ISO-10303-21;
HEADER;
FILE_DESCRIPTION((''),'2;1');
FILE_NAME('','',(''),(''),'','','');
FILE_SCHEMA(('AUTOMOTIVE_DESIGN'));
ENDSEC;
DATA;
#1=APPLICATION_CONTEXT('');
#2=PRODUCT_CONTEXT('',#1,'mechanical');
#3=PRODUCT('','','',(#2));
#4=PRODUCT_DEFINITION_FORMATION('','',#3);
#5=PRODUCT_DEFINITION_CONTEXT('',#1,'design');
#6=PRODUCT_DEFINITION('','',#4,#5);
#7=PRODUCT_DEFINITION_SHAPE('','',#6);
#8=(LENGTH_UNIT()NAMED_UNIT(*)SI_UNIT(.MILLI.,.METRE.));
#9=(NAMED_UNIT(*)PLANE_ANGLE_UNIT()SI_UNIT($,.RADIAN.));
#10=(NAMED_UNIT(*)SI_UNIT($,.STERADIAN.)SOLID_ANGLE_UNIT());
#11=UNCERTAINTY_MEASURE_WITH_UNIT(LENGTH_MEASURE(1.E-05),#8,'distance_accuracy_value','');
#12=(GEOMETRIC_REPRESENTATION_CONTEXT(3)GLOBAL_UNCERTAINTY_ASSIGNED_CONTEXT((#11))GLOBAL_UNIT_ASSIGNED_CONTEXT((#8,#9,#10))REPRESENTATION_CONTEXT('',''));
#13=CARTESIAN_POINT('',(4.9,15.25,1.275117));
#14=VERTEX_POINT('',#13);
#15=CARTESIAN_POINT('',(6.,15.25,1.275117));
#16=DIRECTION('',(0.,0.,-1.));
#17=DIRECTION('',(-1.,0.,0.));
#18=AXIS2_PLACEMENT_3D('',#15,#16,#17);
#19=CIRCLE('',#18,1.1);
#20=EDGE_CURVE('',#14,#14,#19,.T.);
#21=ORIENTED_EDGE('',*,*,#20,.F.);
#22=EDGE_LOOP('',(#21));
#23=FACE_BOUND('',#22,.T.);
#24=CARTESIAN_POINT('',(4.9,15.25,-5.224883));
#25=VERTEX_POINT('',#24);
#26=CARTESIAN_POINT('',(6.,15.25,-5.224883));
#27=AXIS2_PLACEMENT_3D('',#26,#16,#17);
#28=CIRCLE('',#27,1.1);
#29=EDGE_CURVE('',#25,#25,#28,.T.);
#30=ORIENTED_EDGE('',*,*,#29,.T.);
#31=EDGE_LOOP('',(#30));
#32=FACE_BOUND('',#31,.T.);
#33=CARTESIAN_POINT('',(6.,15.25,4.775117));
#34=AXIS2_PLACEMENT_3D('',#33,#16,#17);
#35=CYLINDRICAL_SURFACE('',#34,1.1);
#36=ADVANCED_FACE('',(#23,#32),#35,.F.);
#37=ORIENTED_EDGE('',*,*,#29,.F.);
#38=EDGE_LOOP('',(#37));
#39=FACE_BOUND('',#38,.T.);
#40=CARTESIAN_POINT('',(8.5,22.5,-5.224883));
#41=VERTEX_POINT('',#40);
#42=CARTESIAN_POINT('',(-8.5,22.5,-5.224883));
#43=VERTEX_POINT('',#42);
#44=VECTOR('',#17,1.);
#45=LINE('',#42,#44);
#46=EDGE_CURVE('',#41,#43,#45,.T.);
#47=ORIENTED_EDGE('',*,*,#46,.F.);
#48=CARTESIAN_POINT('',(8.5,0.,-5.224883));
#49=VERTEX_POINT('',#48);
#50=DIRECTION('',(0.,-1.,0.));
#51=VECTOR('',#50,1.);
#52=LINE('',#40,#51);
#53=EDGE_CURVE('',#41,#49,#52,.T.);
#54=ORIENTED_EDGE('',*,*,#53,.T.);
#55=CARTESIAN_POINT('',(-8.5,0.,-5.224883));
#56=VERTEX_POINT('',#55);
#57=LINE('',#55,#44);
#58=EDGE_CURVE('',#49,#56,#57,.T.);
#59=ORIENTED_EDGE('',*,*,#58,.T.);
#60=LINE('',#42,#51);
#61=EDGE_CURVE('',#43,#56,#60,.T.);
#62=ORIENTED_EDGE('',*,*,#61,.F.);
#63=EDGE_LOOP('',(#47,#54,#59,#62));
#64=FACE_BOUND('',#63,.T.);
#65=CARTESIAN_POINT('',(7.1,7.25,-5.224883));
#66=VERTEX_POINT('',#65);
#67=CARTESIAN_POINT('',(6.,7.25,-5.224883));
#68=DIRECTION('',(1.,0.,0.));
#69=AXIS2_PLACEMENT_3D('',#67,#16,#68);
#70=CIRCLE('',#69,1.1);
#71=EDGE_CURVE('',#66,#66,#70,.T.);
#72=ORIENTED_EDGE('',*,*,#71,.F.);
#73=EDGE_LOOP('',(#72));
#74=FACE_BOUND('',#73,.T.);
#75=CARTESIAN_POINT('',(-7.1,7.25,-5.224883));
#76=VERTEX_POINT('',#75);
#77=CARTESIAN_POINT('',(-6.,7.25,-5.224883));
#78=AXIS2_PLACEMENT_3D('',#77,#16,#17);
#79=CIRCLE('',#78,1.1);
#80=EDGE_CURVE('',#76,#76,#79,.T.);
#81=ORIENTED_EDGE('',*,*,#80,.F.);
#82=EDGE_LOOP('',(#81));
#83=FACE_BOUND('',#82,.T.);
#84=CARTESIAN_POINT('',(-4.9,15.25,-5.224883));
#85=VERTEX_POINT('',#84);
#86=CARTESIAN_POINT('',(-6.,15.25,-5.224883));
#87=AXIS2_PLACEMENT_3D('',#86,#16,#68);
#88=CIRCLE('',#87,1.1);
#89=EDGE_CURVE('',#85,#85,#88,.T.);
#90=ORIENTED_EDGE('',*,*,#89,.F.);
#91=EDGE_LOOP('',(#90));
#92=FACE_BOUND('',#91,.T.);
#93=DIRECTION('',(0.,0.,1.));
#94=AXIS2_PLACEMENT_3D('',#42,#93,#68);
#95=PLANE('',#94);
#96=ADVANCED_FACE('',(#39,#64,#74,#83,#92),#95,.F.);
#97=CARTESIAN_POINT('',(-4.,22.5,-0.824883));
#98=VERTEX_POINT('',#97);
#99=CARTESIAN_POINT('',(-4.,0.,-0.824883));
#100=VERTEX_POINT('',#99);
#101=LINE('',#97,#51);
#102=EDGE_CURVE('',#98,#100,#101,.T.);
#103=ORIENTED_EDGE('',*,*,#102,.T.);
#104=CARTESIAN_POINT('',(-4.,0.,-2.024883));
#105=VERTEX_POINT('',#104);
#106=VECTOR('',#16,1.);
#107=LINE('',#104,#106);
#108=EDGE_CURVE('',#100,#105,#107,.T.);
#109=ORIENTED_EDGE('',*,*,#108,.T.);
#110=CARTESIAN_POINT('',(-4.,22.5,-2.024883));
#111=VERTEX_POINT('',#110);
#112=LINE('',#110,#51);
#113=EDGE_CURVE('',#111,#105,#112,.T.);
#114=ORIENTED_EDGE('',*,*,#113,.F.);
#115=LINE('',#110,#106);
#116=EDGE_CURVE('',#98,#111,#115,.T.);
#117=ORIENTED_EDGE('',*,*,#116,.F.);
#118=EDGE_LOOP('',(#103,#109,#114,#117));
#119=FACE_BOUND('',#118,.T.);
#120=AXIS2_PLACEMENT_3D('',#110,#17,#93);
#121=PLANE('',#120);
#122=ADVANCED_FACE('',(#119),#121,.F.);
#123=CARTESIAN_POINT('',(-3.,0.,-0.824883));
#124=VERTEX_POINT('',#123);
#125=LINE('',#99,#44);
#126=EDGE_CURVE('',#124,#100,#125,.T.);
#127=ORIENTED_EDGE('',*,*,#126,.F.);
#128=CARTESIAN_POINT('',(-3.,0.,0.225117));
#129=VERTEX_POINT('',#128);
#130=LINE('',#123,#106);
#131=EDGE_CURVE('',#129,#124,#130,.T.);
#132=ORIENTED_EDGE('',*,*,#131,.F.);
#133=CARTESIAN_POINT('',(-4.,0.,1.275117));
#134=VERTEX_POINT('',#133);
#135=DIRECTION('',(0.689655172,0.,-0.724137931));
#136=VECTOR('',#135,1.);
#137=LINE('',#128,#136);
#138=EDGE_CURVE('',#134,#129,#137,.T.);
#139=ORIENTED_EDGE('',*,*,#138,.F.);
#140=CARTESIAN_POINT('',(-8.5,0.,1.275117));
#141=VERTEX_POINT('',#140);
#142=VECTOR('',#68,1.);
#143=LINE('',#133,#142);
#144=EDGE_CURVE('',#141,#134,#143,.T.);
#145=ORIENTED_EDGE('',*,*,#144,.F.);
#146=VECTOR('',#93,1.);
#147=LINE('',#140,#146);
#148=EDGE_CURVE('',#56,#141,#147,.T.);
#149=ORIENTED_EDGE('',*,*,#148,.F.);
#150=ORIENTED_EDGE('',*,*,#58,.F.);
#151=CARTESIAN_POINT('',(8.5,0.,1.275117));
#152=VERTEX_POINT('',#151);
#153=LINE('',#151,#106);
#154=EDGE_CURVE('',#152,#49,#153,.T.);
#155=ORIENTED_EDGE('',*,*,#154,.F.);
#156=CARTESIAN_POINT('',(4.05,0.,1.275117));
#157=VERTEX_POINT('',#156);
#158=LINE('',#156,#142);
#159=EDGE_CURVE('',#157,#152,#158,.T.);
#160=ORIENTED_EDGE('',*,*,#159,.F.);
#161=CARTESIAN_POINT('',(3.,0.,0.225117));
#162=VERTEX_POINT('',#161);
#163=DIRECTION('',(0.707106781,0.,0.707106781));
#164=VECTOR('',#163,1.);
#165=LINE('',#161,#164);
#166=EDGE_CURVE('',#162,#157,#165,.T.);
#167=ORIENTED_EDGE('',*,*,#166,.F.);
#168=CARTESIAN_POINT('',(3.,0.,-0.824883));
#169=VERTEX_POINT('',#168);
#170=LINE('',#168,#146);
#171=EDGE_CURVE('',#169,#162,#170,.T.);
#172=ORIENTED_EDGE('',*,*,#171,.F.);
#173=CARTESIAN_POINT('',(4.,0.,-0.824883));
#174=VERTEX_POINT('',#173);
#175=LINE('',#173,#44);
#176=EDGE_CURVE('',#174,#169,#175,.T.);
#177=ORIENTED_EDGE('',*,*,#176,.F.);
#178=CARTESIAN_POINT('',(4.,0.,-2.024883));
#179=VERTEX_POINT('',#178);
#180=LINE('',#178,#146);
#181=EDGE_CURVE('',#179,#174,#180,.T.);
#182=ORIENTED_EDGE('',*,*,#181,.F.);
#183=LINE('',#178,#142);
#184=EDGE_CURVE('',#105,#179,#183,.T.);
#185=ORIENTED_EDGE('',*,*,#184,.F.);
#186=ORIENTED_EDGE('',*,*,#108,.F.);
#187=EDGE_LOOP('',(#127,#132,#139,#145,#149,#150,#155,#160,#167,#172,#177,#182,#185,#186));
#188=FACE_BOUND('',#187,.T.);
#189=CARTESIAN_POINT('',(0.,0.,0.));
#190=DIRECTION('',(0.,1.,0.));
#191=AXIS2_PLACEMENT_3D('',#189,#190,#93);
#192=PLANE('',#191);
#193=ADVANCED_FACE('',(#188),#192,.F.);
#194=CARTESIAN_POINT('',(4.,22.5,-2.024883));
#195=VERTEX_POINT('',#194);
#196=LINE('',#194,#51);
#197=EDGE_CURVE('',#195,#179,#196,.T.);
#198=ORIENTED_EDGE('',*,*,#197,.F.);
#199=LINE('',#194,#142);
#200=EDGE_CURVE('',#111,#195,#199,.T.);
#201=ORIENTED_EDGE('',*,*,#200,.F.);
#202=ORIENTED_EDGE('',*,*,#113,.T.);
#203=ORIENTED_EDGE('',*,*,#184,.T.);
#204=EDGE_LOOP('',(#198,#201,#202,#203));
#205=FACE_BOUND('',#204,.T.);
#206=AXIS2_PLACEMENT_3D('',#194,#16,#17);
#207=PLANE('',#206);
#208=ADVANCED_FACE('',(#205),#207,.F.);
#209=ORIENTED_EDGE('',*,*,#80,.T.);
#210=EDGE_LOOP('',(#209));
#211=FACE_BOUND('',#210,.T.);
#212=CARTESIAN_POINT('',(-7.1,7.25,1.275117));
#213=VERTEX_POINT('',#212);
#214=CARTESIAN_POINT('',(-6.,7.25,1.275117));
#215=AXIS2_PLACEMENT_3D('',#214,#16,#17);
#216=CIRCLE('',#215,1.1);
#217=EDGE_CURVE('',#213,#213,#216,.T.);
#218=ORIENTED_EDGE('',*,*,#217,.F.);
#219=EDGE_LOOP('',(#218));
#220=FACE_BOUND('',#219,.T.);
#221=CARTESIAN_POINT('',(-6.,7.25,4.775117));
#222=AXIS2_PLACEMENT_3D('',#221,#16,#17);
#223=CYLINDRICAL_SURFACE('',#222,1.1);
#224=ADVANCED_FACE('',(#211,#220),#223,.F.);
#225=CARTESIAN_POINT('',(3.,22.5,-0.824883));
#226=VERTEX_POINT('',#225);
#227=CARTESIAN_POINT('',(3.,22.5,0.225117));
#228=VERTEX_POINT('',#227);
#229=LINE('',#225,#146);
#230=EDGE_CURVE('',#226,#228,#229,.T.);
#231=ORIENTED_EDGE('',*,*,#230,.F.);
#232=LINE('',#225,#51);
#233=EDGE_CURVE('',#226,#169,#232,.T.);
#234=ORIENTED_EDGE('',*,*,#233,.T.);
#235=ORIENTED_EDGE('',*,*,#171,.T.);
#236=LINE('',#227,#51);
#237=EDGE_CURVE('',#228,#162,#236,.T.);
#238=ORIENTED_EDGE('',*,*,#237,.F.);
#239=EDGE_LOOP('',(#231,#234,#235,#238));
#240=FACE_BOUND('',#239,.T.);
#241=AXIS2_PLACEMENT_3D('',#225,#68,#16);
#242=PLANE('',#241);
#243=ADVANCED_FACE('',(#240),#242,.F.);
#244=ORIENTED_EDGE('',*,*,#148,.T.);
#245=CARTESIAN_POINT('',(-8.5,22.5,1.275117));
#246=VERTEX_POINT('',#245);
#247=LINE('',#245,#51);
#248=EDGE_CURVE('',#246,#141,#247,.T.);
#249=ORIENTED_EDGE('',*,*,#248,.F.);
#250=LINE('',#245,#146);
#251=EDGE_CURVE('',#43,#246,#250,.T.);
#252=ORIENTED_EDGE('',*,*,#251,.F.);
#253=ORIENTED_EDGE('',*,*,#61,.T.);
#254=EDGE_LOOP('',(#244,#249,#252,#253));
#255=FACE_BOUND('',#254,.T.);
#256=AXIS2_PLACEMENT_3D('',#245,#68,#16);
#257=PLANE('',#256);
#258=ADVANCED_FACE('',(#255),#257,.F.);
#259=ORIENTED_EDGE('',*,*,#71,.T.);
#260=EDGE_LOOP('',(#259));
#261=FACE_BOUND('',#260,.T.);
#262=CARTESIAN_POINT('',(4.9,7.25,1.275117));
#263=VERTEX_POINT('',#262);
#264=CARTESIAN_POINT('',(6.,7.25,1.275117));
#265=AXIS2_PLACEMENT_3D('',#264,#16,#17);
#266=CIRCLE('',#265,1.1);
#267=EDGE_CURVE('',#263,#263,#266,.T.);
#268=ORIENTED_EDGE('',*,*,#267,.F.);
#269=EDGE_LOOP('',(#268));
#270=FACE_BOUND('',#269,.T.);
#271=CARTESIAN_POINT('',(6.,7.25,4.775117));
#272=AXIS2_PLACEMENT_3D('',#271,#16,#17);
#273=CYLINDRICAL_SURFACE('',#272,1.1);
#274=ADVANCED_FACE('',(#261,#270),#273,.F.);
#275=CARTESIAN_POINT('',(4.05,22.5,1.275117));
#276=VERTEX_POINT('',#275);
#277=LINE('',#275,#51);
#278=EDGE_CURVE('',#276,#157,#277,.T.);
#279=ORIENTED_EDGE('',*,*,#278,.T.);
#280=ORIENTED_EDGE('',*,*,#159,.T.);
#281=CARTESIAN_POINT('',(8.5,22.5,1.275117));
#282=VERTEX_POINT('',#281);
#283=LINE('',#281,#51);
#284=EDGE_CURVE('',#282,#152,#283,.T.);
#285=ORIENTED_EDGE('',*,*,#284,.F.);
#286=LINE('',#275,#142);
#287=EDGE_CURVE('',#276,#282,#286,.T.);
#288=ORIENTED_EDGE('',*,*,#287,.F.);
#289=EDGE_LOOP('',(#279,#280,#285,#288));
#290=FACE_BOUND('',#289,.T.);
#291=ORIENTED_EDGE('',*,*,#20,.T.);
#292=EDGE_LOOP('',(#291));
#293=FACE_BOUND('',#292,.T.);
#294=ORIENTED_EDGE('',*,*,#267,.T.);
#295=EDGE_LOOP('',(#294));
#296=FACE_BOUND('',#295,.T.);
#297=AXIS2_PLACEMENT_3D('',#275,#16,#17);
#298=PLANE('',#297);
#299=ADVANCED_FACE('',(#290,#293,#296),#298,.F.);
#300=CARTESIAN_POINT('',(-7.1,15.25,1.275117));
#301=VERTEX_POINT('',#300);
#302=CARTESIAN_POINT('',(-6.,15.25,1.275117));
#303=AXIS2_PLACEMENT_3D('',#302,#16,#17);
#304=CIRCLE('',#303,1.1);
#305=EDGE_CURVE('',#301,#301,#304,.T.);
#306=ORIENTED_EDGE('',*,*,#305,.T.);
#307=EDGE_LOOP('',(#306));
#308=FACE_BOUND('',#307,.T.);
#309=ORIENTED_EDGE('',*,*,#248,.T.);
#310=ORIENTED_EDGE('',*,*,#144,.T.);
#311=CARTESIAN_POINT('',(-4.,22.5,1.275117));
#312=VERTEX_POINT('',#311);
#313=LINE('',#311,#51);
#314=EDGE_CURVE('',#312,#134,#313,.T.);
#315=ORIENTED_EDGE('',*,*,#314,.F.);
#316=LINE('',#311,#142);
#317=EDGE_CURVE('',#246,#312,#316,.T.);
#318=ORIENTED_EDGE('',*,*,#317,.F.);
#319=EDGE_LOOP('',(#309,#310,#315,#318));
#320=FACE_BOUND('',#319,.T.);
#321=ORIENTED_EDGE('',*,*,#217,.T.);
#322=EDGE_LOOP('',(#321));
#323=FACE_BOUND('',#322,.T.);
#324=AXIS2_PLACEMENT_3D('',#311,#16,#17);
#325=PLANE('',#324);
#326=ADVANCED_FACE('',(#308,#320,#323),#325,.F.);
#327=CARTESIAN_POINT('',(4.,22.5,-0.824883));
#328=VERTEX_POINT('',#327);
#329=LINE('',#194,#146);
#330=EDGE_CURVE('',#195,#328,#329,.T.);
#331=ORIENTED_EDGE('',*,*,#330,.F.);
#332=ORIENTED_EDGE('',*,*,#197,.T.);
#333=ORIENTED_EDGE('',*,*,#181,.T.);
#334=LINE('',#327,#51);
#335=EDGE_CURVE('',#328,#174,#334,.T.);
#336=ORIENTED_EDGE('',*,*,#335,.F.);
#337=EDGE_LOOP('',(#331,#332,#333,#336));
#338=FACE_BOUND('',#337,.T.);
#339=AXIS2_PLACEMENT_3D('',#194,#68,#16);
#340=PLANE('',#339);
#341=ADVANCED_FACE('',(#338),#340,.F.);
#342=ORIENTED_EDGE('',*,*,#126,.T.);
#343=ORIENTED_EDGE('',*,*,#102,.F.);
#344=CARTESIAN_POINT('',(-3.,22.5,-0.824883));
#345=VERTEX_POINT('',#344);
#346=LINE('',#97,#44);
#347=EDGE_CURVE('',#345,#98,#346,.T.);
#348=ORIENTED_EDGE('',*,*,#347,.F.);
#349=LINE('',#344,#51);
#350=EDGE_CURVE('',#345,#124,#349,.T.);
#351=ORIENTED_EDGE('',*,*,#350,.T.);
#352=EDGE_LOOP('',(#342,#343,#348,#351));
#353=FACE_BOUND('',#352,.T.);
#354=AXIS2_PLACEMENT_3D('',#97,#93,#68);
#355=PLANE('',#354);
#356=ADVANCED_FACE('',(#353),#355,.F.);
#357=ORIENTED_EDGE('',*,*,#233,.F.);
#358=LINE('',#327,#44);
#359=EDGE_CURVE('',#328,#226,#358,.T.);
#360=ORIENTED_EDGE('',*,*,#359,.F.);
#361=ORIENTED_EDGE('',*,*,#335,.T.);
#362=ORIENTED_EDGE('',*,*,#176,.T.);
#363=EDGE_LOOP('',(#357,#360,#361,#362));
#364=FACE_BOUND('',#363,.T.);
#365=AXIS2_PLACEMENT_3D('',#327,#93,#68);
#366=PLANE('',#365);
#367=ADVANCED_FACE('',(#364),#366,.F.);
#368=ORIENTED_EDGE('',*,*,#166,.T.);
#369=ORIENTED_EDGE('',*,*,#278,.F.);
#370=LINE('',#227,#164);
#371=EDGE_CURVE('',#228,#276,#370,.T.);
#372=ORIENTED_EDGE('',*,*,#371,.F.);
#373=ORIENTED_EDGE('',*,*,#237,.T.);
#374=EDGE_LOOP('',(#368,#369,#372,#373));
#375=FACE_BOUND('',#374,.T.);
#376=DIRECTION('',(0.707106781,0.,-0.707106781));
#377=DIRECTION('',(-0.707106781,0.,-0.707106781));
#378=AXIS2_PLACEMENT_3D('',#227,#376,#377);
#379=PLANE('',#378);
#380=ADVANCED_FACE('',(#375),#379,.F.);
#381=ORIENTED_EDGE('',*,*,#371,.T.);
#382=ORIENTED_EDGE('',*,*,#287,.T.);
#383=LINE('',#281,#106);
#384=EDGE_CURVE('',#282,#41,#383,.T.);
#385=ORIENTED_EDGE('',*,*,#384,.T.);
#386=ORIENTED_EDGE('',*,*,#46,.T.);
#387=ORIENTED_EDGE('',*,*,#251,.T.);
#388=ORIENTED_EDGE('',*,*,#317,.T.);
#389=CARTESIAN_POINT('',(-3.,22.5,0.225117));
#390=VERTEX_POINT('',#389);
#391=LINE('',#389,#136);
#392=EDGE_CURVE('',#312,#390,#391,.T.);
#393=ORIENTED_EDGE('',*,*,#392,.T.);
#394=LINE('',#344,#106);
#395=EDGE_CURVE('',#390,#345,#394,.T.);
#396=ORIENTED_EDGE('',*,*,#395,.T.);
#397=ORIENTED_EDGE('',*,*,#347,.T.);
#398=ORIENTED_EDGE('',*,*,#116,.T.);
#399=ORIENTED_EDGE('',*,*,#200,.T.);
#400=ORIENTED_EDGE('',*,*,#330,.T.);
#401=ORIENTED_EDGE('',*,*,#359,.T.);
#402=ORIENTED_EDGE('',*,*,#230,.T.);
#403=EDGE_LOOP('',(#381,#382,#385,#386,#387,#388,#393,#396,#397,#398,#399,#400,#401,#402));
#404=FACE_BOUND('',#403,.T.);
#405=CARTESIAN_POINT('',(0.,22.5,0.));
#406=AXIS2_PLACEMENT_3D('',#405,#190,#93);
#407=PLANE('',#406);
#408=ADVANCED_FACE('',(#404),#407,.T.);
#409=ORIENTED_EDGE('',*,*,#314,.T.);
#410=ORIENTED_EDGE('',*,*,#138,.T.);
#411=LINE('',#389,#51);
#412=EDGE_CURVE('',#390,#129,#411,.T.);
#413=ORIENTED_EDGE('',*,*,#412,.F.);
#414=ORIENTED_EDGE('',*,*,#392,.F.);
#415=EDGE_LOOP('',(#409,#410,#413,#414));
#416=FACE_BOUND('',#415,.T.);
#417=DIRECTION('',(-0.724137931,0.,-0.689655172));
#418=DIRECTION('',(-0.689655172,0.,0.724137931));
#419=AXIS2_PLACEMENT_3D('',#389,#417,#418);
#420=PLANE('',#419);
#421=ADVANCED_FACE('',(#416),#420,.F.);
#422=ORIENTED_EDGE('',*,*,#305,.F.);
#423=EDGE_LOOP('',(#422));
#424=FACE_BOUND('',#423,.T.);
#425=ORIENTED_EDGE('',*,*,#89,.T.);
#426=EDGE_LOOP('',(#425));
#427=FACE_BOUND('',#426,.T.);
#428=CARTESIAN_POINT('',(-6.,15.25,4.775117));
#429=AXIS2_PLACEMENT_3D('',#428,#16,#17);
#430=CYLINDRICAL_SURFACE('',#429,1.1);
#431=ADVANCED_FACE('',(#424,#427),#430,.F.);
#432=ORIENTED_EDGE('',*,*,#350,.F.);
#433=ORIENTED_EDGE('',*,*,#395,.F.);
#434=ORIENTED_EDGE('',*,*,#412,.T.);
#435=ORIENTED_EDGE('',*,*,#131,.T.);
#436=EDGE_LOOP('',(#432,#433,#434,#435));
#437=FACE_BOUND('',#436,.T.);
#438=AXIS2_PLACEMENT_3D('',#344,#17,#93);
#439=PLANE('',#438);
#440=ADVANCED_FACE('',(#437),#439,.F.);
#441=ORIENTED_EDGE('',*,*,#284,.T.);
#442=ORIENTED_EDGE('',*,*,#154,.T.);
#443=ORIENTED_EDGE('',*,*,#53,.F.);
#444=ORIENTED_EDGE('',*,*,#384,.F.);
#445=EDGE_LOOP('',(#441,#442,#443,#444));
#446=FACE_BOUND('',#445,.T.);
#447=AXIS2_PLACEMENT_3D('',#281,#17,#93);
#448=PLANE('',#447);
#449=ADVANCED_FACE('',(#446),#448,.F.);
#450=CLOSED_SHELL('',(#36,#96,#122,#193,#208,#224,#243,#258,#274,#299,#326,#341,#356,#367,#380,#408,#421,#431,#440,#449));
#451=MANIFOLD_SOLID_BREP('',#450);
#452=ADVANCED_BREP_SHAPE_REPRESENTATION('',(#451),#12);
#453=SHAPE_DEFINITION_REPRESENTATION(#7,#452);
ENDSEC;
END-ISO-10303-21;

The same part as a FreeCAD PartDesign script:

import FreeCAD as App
import Part
import Sketcher
Q = App.Units.Quantity

doc = App.newDocument("Part")
params = doc.addObject("Spreadsheet::Sheet", "Params")
for row, (alias, value) in enumerate([
    ("sketch1_width", "1 mm"),
    ("sketch1_width2", "8 mm"),
    ("sketch1_width3", "17 mm"),
    ("sketch1_height", "1.2 mm"),
    ("sketch1_height2", "6.5 mm"),
    ("pad1_length", "22.5 mm"),
    ("sketch2_diameter", "2.2 mm"),
    ("pocket1_length", "10 mm"),
], start=1):
    params.set(f"A{row}", alias)
    params.set(f"B{row}", "=" + value)
    params.setAlias(f"B{row}", alias)

body = doc.addObject("PartDesign::Body", "Body")

sketch1 = body.newObject("Sketcher::SketchObject", "Sketch")
sketch1.AttachmentSupport = (doc.getObject("XZ_Plane"), [""])
sketch1.MapMode = "FlatFace"
sketch1.addGeometry([
    Part.LineSegment(App.Vector(-3, -0.8, 0), App.Vector(-4, -0.8, 0)),
    Part.LineSegment(App.Vector(-4, -0.8, 0), App.Vector(-4, -2, 0)),
    Part.LineSegment(App.Vector(-4, -2, 0), App.Vector(4, -2, 0)),
    Part.LineSegment(App.Vector(4, -2, 0), App.Vector(4, -0.8, 0)),
    Part.LineSegment(App.Vector(4, -0.8, 0), App.Vector(3, -0.8, 0)),
    Part.LineSegment(App.Vector(3, -0.8, 0), App.Vector(3, 0.2, 0)),
    Part.LineSegment(App.Vector(3, 0.2, 0), App.Vector(4, 1.3, 0)),
    Part.LineSegment(App.Vector(4, 1.3, 0), App.Vector(8.5, 1.3, 0)),
    Part.LineSegment(App.Vector(8.5, 1.3, 0), App.Vector(8.5, -5.2, 0)),
    Part.LineSegment(App.Vector(8.5, -5.2, 0), App.Vector(-8.5, -5.2, 0)),
    Part.LineSegment(App.Vector(-8.5, -5.2, 0), App.Vector(-8.5, 1.3, 0)),
    Part.LineSegment(App.Vector(-8.5, 1.3, 0), App.Vector(-4, 1.3, 0)),
    Part.LineSegment(App.Vector(-4, 1.3, 0), App.Vector(-3, 0.2, 0)),
    Part.LineSegment(App.Vector(-3, 0.2, 0), App.Vector(-3, -0.8, 0)),
], False)
sketch1.addConstraint([
    Sketcher.Constraint("Coincident", 0, 2, 1, 1),
    Sketcher.Constraint("Coincident", 1, 2, 2, 1),
    Sketcher.Constraint("Coincident", 2, 2, 3, 1),
    Sketcher.Constraint("Coincident", 3, 2, 4, 1),
    Sketcher.Constraint("Coincident", 4, 2, 5, 1),
    Sketcher.Constraint("Coincident", 5, 2, 6, 1),
    Sketcher.Constraint("Coincident", 6, 2, 7, 1),
    Sketcher.Constraint("Coincident", 7, 2, 8, 1),
    Sketcher.Constraint("Coincident", 8, 2, 9, 1),
    Sketcher.Constraint("Coincident", 9, 2, 10, 1),
    Sketcher.Constraint("Coincident", 10, 2, 11, 1),
    Sketcher.Constraint("Coincident", 11, 2, 12, 1),
    Sketcher.Constraint("Coincident", 12, 2, 13, 1),
    Sketcher.Constraint("Coincident", 13, 2, 0, 1),
    Sketcher.Constraint("Horizontal", 0),
    Sketcher.Constraint("Vertical", 1),
    Sketcher.Constraint("Horizontal", 2),
    Sketcher.Constraint("Vertical", 3),
    Sketcher.Constraint("Horizontal", 4),
    Sketcher.Constraint("Vertical", 5),
    Sketcher.Constraint("Horizontal", 7),
    Sketcher.Constraint("Vertical", 8),
    Sketcher.Constraint("Horizontal", 9),
    Sketcher.Constraint("Vertical", 10),
    Sketcher.Constraint("Horizontal", 11),
    Sketcher.Constraint("Vertical", 13),
    Sketcher.Constraint("Symmetric", 0, 2, 3, 2, -2),
    Sketcher.Constraint("Symmetric", 7, 2, 10, 2, -2),
    Sketcher.Constraint("Symmetric", 5, 2, 12, 2, -2),
    Sketcher.Constraint("Vertical", 1, 2, 11, 2),
    Sketcher.Constraint("DistanceX", 0, 2, 0, 1, 1.0),
    Sketcher.Constraint("DistanceX", 2, 1, 2, 2, 8.0),
    Sketcher.Constraint("DistanceX", 9, 2, 9, 1, 17.0),
    Sketcher.Constraint("Angle", 6, Q("45 deg")),
    Sketcher.Constraint("DistanceY", 1, 2, 1, 1, 1.2),
    Sketcher.Constraint("DistanceY", 8, 2, 8, 1, 6.5),
    Sketcher.Constraint("DistanceX", 7, 1, 7, 2, 4.45),
    Sketcher.Constraint("DistanceY", 5, 1, 5, 2, 1.05),
    Sketcher.Constraint("DistanceY", 0, 2, -1, 1, 0.824883),
])
sketch1.setExpression("Constraints[30]", "Params.sketch1_width")
sketch1.setExpression("Constraints[31]", "Params.sketch1_width2")
sketch1.setExpression("Constraints[32]", "Params.sketch1_width3")
sketch1.setExpression("Constraints[34]", "Params.sketch1_height")
sketch1.setExpression("Constraints[35]", "Params.sketch1_height2")
pad1 = body.newObject("PartDesign::Pad", "Pad")
pad1.Profile = sketch1
pad1.setExpression("Length", "Params.pad1_length")
pad1.Reversed = True

sketch2 = body.newObject("Sketcher::SketchObject", "Sketch001")
sketch2.AttachmentSupport = (doc.getObject("XY_Plane"), [""])
sketch2.MapMode = "FlatFace"
sketch2.AttachmentOffset = App.Placement(App.Vector(0, 0, -5.224883), App.Rotation())
sketch2.addGeometry([
    Part.Circle(App.Vector(6, 15.2, 0), App.Vector(0, 0, 1), 1.1),
    Part.Circle(App.Vector(-6, 15.2, 0), App.Vector(0, 0, 1), 1.1),
    Part.Circle(App.Vector(-6, 7.2, 0), App.Vector(0, 0, 1), 1.1),
    Part.Circle(App.Vector(6, 7.2, 0), App.Vector(0, 0, 1), 1.1),
], False)
sketch2.addConstraint([
    Sketcher.Constraint("Equal", 0, 1),
    Sketcher.Constraint("Equal", 1, 2),
    Sketcher.Constraint("Equal", 2, 3),
    Sketcher.Constraint("Symmetric", 0, 3, 1, 3, -2),
    Sketcher.Constraint("Symmetric", 2, 3, 3, 3, -2),
    Sketcher.Constraint("Vertical", 1, 3, 2, 3),
    Sketcher.Constraint("Diameter", 0, 2.2),
    Sketcher.Constraint("DistanceX", -1, 1, 0, 3, 6.0),
    Sketcher.Constraint("DistanceY", 2, 3, 1, 3, 8.0),
    Sketcher.Constraint("DistanceY", -1, 1, 0, 3, 15.25),
])
sketch2.setExpression("Constraints[6]", "Params.sketch2_diameter")
pocket1 = body.newObject("PartDesign::Pocket", "Pocket")
pocket1.Profile = sketch2
pocket1.setExpression("Length", "Params.pocket1_length")
pocket1.Reversed = True

doc.recompute()
